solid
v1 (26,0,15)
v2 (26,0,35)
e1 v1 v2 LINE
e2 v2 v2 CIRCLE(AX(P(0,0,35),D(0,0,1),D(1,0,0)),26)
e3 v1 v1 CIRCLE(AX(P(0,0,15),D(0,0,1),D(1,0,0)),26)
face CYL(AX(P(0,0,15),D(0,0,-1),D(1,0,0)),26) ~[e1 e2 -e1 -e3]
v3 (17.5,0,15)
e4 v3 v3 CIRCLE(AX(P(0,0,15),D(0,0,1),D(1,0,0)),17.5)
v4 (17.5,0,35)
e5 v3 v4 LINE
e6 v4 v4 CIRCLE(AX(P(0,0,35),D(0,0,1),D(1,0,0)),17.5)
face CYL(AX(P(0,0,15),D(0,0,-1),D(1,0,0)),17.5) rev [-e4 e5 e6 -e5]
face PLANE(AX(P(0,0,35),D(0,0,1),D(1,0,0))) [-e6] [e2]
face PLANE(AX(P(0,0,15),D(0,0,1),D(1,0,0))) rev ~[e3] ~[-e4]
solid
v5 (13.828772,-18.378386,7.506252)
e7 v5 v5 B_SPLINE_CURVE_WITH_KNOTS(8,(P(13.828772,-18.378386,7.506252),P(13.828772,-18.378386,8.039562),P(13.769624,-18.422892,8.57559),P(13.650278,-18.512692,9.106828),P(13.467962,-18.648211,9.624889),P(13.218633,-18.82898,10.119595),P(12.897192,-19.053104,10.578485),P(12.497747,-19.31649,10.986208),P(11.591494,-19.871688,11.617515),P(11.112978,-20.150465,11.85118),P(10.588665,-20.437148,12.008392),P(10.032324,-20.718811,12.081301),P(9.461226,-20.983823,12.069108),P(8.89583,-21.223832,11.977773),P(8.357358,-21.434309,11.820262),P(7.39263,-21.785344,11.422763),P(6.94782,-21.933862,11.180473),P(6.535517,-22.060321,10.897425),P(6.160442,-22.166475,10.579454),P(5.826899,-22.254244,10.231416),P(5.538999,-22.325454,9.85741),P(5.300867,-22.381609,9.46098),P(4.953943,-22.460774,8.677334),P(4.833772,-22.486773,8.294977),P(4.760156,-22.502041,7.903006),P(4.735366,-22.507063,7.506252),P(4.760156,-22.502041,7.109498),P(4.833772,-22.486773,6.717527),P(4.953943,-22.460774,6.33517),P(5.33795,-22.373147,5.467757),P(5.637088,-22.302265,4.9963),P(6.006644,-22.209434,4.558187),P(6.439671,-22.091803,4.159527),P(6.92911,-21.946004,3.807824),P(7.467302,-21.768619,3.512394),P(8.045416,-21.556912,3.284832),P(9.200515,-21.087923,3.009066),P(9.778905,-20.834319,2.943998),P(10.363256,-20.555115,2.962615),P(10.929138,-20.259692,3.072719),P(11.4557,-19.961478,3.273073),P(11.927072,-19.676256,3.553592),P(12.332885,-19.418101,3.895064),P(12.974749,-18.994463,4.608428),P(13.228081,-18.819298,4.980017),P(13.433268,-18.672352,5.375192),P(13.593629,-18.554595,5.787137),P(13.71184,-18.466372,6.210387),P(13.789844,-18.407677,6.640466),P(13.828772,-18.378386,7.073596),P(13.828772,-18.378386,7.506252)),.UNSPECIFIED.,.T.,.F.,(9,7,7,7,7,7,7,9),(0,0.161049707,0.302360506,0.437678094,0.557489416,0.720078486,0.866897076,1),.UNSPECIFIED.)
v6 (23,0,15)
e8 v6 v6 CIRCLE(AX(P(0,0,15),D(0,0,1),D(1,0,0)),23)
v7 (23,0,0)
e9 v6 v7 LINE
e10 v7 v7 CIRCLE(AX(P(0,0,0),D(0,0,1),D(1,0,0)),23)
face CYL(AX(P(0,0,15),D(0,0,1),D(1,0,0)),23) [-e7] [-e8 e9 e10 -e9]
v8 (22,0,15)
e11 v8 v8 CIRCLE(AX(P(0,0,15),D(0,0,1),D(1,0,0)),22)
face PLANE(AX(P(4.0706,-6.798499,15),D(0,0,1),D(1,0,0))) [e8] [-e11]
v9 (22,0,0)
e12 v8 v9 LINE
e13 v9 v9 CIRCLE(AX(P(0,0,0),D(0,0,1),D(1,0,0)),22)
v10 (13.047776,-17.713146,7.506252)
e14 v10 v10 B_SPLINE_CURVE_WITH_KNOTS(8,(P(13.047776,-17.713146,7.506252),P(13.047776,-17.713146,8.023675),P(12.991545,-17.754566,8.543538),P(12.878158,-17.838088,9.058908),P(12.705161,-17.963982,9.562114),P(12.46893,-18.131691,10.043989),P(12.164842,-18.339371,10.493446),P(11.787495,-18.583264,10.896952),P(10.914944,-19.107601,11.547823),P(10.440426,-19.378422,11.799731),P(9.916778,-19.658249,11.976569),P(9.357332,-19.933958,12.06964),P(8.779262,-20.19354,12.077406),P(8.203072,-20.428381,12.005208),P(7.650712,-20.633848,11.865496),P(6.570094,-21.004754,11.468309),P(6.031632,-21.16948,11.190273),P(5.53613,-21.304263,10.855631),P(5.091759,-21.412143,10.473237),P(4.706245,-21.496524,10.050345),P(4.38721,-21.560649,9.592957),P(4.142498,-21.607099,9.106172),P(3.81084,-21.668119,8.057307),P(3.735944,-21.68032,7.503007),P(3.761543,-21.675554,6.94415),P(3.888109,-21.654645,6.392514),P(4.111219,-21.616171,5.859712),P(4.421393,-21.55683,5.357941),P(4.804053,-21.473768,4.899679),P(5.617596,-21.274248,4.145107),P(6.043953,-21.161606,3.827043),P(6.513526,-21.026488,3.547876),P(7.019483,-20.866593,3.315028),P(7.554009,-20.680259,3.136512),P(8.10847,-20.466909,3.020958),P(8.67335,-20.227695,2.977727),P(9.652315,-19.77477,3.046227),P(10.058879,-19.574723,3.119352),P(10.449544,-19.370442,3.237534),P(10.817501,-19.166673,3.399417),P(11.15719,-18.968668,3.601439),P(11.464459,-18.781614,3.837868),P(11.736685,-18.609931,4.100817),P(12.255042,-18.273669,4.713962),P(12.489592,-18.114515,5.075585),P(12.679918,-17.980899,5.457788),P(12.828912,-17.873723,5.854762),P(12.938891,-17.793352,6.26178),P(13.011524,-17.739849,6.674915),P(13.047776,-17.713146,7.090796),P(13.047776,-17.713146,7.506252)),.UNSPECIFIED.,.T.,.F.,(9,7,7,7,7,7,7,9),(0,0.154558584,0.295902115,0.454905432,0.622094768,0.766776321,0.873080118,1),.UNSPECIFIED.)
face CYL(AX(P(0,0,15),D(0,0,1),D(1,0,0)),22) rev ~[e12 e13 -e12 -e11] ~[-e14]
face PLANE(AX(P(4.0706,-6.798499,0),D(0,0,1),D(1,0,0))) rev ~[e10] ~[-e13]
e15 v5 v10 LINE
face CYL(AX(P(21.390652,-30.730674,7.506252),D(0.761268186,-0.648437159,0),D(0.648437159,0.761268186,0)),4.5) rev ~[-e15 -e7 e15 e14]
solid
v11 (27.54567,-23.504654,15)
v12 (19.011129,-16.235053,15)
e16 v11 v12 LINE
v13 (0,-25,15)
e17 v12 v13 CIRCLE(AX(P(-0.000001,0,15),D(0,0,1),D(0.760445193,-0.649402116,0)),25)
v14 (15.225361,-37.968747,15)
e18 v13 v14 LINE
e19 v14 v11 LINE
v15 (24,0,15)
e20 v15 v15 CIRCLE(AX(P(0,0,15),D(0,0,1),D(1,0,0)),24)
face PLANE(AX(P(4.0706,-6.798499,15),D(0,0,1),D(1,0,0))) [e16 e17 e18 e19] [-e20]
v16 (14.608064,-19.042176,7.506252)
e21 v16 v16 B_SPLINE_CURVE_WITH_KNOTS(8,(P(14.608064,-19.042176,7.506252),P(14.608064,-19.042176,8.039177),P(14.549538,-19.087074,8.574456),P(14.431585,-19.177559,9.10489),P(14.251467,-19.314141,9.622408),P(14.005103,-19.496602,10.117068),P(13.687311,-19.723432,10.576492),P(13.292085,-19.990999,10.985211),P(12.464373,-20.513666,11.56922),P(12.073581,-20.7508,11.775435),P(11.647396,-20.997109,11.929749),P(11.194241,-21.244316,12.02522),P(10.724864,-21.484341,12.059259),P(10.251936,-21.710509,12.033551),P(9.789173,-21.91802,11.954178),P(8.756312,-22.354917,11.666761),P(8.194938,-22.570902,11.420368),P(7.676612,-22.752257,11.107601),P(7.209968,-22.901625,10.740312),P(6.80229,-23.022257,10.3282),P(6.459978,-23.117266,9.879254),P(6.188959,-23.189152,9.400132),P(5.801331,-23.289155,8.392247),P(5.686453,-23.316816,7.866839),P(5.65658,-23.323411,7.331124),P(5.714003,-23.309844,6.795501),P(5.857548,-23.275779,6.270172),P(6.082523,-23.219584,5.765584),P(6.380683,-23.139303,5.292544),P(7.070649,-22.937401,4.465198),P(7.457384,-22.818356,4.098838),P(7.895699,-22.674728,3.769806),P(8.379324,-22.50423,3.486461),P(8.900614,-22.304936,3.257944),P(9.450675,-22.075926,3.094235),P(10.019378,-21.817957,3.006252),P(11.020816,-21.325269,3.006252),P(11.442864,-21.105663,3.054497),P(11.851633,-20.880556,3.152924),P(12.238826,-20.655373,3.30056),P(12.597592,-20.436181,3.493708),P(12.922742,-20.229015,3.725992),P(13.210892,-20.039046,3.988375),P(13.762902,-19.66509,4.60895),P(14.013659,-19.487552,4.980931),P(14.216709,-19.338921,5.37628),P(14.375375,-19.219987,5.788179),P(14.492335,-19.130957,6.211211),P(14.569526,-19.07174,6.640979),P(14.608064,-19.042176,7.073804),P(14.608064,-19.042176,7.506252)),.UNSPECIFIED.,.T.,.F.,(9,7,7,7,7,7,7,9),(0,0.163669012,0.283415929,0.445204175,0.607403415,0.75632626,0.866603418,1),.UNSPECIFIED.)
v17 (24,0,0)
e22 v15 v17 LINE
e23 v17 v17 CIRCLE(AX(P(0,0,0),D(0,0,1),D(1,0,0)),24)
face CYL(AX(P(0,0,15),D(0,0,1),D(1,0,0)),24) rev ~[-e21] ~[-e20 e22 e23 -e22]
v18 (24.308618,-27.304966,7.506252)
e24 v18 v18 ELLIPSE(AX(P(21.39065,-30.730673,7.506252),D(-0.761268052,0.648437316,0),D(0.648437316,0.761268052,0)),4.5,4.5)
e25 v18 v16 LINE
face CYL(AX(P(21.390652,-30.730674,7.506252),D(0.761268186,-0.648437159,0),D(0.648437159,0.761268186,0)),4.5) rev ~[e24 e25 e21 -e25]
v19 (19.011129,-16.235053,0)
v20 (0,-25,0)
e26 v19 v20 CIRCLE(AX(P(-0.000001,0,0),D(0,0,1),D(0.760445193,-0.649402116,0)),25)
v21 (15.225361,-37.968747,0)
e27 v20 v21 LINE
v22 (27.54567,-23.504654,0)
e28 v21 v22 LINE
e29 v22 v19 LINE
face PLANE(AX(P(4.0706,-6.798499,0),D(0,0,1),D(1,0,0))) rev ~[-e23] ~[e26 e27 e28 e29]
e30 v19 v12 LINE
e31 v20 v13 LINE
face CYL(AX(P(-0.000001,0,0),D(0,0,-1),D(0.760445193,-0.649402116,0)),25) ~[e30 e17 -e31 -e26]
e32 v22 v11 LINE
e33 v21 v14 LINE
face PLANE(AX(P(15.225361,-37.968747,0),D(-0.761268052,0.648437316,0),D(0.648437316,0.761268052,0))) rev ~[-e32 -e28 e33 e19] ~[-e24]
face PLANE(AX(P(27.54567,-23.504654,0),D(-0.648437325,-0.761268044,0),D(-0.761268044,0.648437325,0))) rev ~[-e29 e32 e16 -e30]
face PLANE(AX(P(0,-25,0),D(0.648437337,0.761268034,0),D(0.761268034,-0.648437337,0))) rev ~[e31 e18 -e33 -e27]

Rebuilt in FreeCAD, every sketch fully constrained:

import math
import FreeCAD as App
import Part
import Sketcher
Q = App.Units.Quantity

doc = App.newDocument("Part")
params = doc.addObject("Spreadsheet::Sheet", "Params")
for row, (alias, value) in enumerate([
    ("sketch1_radius", "25 mm"),
    ("sketch1_length", "20 mm"),
    ("sketch1_length2", "19 mm"),
    ("pad1_length", "15 mm"),
    ("sketch2_diameter", "9 mm"),
    ("pocket1_length", "20 mm"),
    ("sketch3_diameter", "44 mm"),
    ("pocket2_length", "15 mm"),
    ("sketch4_diameter", "48 mm"),
    ("sketch4_diameter2", "46 mm"),
    ("pocket3_length", "15 mm"),
    ("sketch5_diameter", "52 mm"),
    ("sketch5_diameter2", "35 mm"),
    ("pad2_length", "20 mm"),
], start=1):
    params.set(f"A{row}", alias)
    params.set(f"B{row}", "=" + value)
    params.setAlias(f"B{row}", alias)

body = doc.addObject("PartDesign::Body", "Body")
body.AllowCompound = True

sketch1 = body.newObject("Sketcher::SketchObject", "Sketch")
sketch1.AttachmentSupport = (doc.getObject("XY_Plane"), [""])
sketch1.MapMode = "FlatFace"
sketch1.addGeometry(Part.LineSegment(App.Vector(28, -24, 0), App.Vector(19, -16, 0)), False)
sketch1.addGeometry(Part.ArcOfCircle(Part.Circle(App.Vector(0, 0, 0), App.Vector(0, 0, 1), 25), math.radians(-40), math.radians(270)), False)
sketch1.addGeometry(Part.LineSegment(App.Vector(0, -25, 0), App.Vector(15, -38, 0)), False)
sketch1.addGeometry(Part.LineSegment(App.Vector(15, -38, 0), App.Vector(28, -24, 0)), False)
sketch1.addConstraint(Sketcher.Constraint("Coincident", 0, 2, 1, 1))
sketch1.addConstraint(Sketcher.Constraint("Coincident", 1, 2, 2, 1))
sketch1.addConstraint(Sketcher.Constraint("Coincident", 2, 2, 3, 1))
sketch1.addConstraint(Sketcher.Constraint("Coincident", 3, 2, 0, 1))
sketch1.addConstraint(Sketcher.Constraint("Coincident", 1, 3, -1, 1))
sketch1.addConstraint(Sketcher.Constraint("PointOnObject", 1, 2, -2))
sketch1.addConstraint(Sketcher.Constraint("Parallel", 0, 2))
sketch1.addConstraint(Sketcher.Constraint("Perpendicular", 2, 3))
sketch1.addConstraint(Sketcher.Constraint("Radius", 1, Q("25 mm")))
sketch1.addConstraint(Sketcher.Constraint("Distance", 2, Q("20 mm")))
sketch1.addConstraint(Sketcher.Constraint("Distance", 3, Q("19 mm")))
sketch1.addConstraint(Sketcher.Constraint("DistanceY", 3, 2, 0, 2, Q("7.269601 mm")))
sketch1.setExpression("Constraints[8]", "Params.sketch1_radius")
sketch1.setExpression("Constraints[9]", "Params.sketch1_length")
sketch1.setExpression("Constraints[10]", "Params.sketch1_length2")
pad1 = body.newObject("PartDesign::Pad", "Pad")
pad1.Profile = sketch1
pad1.setExpression("Length", "Params.pad1_length")

sketch2 = body.newObject("Sketcher::SketchObject", "Sketch001")
sketch2.Placement = App.Placement(App.Vector(27.566226, -23.480522, 0), App.Rotation(App.Vector(0.648437159, 0.761268186, 0), App.Vector(0, 0, 1), App.Vector(0.761268186, -0.648437159, 0), "ZXY"))
sketch2.addGeometry(Part.Circle(App.Vector(-9.5, 7.5, 0), App.Vector(0, 0, 1), 4.5), False)
sketch2.addConstraint(Sketcher.Constraint("Diameter", 0, Q("9 mm")))
sketch2.addConstraint(Sketcher.Constraint("DistanceX", 0, 3, -1, 1, Q("9.523782 mm")))
sketch2.addConstraint(Sketcher.Constraint("DistanceY", -1, 1, 0, 3, Q("7.506252 mm")))
sketch2.setExpression("Constraints[0]", "Params.sketch2_diameter")
pocket1 = body.newObject("PartDesign::Pocket", "Pocket")
pocket1.Profile = sketch2
pocket1.setExpression("Length", "Params.pocket1_length")

sketch3 = body.newObject("Sketcher::SketchObject", "Sketch002")
sketch3.AttachmentSupport = (doc.getObject("XY_Plane"), [""])
sketch3.MapMode = "FlatFace"
sketch3.AttachmentOffset = App.Placement(App.Vector(0, 0, 15), App.Rotation())
sketch3.addGeometry(Part.Circle(App.Vector(0, 0, 0), App.Vector(0, 0, 1), 22), False)
sketch3.addConstraint(Sketcher.Constraint("Coincident", 0, 3, -1, 1))
sketch3.addConstraint(Sketcher.Constraint("Diameter", 0, Q("44 mm")))
sketch3.setExpression("Constraints[1]", "Params.sketch3_diameter")
pocket2 = body.newObject("PartDesign::Pocket", "Pocket001")
pocket2.Profile = sketch3
pocket2.setExpression("Length", "Params.pocket2_length")

sketch4 = body.newObject("Sketcher::SketchObject", "Sketch003")
sketch4.AttachmentSupport = (doc.getObject("XY_Plane"), [""])
sketch4.MapMode = "FlatFace"
sketch4.AttachmentOffset = App.Placement(App.Vector(0, 0, 15), App.Rotation())
sketch4.addGeometry(Part.Circle(App.Vector(0, 0, 0), App.Vector(0, 0, 1), 24), False)
sketch4.addGeometry(Part.Circle(App.Vector(0, 0, 0), App.Vector(0, 0, 1), 23), False)
sketch4.addConstraint(Sketcher.Constraint("Coincident", 0, 3, -1, 1))
sketch4.addConstraint(Sketcher.Constraint("Coincident", 1, 3, -1, 1))
sketch4.addConstraint(Sketcher.Constraint("Diameter", 0, Q("48 mm")))
sketch4.addConstraint(Sketcher.Constraint("Diameter", 1, Q("46 mm")))
sketch4.setExpression("Constraints[2]", "Params.sketch4_diameter")
sketch4.setExpression("Constraints[3]", "Params.sketch4_diameter2")
pocket3 = body.newObject("PartDesign::Pocket", "Pocket002")
pocket3.Profile = sketch4
pocket3.setExpression("Length", "Params.pocket3_length")
body2 = doc.addObject("PartDesign::Body", "Body001")

sketch5 = body2.newObject("Sketcher::SketchObject", "Sketch004")
sketch5.AttachmentSupport = (doc.getObject("XY_Plane001"), [""])
sketch5.MapMode = "FlatFace"
sketch5.AttachmentOffset = App.Placement(App.Vector(0, 0, 15), App.Rotation())
sketch5.addGeometry(Part.Circle(App.Vector(0, 0, 0), App.Vector(0, 0, 1), 26), False)
sketch5.addGeometry(Part.Circle(App.Vector(0, 0, 0), App.Vector(0, 0, 1), 18), False)
sketch5.addConstraint(Sketcher.Constraint("Coincident", 0, 3, -1, 1))
sketch5.addConstraint(Sketcher.Constraint("Coincident", 1, 3, -1, 1))
sketch5.addConstraint(Sketcher.Constraint("Diameter", 0, Q("52 mm")))
sketch5.addConstraint(Sketcher.Constraint("Diameter", 1, Q("35 mm")))
sketch5.setExpression("Constraints[2]", "Params.sketch5_diameter")
sketch5.setExpression("Constraints[3]", "Params.sketch5_diameter2")
pad2 = body2.newObject("PartDesign::Pad", "Pad001")
pad2.Profile = sketch5
pad2.setExpression("Length", "Params.pad2_length")

doc.recompute()
